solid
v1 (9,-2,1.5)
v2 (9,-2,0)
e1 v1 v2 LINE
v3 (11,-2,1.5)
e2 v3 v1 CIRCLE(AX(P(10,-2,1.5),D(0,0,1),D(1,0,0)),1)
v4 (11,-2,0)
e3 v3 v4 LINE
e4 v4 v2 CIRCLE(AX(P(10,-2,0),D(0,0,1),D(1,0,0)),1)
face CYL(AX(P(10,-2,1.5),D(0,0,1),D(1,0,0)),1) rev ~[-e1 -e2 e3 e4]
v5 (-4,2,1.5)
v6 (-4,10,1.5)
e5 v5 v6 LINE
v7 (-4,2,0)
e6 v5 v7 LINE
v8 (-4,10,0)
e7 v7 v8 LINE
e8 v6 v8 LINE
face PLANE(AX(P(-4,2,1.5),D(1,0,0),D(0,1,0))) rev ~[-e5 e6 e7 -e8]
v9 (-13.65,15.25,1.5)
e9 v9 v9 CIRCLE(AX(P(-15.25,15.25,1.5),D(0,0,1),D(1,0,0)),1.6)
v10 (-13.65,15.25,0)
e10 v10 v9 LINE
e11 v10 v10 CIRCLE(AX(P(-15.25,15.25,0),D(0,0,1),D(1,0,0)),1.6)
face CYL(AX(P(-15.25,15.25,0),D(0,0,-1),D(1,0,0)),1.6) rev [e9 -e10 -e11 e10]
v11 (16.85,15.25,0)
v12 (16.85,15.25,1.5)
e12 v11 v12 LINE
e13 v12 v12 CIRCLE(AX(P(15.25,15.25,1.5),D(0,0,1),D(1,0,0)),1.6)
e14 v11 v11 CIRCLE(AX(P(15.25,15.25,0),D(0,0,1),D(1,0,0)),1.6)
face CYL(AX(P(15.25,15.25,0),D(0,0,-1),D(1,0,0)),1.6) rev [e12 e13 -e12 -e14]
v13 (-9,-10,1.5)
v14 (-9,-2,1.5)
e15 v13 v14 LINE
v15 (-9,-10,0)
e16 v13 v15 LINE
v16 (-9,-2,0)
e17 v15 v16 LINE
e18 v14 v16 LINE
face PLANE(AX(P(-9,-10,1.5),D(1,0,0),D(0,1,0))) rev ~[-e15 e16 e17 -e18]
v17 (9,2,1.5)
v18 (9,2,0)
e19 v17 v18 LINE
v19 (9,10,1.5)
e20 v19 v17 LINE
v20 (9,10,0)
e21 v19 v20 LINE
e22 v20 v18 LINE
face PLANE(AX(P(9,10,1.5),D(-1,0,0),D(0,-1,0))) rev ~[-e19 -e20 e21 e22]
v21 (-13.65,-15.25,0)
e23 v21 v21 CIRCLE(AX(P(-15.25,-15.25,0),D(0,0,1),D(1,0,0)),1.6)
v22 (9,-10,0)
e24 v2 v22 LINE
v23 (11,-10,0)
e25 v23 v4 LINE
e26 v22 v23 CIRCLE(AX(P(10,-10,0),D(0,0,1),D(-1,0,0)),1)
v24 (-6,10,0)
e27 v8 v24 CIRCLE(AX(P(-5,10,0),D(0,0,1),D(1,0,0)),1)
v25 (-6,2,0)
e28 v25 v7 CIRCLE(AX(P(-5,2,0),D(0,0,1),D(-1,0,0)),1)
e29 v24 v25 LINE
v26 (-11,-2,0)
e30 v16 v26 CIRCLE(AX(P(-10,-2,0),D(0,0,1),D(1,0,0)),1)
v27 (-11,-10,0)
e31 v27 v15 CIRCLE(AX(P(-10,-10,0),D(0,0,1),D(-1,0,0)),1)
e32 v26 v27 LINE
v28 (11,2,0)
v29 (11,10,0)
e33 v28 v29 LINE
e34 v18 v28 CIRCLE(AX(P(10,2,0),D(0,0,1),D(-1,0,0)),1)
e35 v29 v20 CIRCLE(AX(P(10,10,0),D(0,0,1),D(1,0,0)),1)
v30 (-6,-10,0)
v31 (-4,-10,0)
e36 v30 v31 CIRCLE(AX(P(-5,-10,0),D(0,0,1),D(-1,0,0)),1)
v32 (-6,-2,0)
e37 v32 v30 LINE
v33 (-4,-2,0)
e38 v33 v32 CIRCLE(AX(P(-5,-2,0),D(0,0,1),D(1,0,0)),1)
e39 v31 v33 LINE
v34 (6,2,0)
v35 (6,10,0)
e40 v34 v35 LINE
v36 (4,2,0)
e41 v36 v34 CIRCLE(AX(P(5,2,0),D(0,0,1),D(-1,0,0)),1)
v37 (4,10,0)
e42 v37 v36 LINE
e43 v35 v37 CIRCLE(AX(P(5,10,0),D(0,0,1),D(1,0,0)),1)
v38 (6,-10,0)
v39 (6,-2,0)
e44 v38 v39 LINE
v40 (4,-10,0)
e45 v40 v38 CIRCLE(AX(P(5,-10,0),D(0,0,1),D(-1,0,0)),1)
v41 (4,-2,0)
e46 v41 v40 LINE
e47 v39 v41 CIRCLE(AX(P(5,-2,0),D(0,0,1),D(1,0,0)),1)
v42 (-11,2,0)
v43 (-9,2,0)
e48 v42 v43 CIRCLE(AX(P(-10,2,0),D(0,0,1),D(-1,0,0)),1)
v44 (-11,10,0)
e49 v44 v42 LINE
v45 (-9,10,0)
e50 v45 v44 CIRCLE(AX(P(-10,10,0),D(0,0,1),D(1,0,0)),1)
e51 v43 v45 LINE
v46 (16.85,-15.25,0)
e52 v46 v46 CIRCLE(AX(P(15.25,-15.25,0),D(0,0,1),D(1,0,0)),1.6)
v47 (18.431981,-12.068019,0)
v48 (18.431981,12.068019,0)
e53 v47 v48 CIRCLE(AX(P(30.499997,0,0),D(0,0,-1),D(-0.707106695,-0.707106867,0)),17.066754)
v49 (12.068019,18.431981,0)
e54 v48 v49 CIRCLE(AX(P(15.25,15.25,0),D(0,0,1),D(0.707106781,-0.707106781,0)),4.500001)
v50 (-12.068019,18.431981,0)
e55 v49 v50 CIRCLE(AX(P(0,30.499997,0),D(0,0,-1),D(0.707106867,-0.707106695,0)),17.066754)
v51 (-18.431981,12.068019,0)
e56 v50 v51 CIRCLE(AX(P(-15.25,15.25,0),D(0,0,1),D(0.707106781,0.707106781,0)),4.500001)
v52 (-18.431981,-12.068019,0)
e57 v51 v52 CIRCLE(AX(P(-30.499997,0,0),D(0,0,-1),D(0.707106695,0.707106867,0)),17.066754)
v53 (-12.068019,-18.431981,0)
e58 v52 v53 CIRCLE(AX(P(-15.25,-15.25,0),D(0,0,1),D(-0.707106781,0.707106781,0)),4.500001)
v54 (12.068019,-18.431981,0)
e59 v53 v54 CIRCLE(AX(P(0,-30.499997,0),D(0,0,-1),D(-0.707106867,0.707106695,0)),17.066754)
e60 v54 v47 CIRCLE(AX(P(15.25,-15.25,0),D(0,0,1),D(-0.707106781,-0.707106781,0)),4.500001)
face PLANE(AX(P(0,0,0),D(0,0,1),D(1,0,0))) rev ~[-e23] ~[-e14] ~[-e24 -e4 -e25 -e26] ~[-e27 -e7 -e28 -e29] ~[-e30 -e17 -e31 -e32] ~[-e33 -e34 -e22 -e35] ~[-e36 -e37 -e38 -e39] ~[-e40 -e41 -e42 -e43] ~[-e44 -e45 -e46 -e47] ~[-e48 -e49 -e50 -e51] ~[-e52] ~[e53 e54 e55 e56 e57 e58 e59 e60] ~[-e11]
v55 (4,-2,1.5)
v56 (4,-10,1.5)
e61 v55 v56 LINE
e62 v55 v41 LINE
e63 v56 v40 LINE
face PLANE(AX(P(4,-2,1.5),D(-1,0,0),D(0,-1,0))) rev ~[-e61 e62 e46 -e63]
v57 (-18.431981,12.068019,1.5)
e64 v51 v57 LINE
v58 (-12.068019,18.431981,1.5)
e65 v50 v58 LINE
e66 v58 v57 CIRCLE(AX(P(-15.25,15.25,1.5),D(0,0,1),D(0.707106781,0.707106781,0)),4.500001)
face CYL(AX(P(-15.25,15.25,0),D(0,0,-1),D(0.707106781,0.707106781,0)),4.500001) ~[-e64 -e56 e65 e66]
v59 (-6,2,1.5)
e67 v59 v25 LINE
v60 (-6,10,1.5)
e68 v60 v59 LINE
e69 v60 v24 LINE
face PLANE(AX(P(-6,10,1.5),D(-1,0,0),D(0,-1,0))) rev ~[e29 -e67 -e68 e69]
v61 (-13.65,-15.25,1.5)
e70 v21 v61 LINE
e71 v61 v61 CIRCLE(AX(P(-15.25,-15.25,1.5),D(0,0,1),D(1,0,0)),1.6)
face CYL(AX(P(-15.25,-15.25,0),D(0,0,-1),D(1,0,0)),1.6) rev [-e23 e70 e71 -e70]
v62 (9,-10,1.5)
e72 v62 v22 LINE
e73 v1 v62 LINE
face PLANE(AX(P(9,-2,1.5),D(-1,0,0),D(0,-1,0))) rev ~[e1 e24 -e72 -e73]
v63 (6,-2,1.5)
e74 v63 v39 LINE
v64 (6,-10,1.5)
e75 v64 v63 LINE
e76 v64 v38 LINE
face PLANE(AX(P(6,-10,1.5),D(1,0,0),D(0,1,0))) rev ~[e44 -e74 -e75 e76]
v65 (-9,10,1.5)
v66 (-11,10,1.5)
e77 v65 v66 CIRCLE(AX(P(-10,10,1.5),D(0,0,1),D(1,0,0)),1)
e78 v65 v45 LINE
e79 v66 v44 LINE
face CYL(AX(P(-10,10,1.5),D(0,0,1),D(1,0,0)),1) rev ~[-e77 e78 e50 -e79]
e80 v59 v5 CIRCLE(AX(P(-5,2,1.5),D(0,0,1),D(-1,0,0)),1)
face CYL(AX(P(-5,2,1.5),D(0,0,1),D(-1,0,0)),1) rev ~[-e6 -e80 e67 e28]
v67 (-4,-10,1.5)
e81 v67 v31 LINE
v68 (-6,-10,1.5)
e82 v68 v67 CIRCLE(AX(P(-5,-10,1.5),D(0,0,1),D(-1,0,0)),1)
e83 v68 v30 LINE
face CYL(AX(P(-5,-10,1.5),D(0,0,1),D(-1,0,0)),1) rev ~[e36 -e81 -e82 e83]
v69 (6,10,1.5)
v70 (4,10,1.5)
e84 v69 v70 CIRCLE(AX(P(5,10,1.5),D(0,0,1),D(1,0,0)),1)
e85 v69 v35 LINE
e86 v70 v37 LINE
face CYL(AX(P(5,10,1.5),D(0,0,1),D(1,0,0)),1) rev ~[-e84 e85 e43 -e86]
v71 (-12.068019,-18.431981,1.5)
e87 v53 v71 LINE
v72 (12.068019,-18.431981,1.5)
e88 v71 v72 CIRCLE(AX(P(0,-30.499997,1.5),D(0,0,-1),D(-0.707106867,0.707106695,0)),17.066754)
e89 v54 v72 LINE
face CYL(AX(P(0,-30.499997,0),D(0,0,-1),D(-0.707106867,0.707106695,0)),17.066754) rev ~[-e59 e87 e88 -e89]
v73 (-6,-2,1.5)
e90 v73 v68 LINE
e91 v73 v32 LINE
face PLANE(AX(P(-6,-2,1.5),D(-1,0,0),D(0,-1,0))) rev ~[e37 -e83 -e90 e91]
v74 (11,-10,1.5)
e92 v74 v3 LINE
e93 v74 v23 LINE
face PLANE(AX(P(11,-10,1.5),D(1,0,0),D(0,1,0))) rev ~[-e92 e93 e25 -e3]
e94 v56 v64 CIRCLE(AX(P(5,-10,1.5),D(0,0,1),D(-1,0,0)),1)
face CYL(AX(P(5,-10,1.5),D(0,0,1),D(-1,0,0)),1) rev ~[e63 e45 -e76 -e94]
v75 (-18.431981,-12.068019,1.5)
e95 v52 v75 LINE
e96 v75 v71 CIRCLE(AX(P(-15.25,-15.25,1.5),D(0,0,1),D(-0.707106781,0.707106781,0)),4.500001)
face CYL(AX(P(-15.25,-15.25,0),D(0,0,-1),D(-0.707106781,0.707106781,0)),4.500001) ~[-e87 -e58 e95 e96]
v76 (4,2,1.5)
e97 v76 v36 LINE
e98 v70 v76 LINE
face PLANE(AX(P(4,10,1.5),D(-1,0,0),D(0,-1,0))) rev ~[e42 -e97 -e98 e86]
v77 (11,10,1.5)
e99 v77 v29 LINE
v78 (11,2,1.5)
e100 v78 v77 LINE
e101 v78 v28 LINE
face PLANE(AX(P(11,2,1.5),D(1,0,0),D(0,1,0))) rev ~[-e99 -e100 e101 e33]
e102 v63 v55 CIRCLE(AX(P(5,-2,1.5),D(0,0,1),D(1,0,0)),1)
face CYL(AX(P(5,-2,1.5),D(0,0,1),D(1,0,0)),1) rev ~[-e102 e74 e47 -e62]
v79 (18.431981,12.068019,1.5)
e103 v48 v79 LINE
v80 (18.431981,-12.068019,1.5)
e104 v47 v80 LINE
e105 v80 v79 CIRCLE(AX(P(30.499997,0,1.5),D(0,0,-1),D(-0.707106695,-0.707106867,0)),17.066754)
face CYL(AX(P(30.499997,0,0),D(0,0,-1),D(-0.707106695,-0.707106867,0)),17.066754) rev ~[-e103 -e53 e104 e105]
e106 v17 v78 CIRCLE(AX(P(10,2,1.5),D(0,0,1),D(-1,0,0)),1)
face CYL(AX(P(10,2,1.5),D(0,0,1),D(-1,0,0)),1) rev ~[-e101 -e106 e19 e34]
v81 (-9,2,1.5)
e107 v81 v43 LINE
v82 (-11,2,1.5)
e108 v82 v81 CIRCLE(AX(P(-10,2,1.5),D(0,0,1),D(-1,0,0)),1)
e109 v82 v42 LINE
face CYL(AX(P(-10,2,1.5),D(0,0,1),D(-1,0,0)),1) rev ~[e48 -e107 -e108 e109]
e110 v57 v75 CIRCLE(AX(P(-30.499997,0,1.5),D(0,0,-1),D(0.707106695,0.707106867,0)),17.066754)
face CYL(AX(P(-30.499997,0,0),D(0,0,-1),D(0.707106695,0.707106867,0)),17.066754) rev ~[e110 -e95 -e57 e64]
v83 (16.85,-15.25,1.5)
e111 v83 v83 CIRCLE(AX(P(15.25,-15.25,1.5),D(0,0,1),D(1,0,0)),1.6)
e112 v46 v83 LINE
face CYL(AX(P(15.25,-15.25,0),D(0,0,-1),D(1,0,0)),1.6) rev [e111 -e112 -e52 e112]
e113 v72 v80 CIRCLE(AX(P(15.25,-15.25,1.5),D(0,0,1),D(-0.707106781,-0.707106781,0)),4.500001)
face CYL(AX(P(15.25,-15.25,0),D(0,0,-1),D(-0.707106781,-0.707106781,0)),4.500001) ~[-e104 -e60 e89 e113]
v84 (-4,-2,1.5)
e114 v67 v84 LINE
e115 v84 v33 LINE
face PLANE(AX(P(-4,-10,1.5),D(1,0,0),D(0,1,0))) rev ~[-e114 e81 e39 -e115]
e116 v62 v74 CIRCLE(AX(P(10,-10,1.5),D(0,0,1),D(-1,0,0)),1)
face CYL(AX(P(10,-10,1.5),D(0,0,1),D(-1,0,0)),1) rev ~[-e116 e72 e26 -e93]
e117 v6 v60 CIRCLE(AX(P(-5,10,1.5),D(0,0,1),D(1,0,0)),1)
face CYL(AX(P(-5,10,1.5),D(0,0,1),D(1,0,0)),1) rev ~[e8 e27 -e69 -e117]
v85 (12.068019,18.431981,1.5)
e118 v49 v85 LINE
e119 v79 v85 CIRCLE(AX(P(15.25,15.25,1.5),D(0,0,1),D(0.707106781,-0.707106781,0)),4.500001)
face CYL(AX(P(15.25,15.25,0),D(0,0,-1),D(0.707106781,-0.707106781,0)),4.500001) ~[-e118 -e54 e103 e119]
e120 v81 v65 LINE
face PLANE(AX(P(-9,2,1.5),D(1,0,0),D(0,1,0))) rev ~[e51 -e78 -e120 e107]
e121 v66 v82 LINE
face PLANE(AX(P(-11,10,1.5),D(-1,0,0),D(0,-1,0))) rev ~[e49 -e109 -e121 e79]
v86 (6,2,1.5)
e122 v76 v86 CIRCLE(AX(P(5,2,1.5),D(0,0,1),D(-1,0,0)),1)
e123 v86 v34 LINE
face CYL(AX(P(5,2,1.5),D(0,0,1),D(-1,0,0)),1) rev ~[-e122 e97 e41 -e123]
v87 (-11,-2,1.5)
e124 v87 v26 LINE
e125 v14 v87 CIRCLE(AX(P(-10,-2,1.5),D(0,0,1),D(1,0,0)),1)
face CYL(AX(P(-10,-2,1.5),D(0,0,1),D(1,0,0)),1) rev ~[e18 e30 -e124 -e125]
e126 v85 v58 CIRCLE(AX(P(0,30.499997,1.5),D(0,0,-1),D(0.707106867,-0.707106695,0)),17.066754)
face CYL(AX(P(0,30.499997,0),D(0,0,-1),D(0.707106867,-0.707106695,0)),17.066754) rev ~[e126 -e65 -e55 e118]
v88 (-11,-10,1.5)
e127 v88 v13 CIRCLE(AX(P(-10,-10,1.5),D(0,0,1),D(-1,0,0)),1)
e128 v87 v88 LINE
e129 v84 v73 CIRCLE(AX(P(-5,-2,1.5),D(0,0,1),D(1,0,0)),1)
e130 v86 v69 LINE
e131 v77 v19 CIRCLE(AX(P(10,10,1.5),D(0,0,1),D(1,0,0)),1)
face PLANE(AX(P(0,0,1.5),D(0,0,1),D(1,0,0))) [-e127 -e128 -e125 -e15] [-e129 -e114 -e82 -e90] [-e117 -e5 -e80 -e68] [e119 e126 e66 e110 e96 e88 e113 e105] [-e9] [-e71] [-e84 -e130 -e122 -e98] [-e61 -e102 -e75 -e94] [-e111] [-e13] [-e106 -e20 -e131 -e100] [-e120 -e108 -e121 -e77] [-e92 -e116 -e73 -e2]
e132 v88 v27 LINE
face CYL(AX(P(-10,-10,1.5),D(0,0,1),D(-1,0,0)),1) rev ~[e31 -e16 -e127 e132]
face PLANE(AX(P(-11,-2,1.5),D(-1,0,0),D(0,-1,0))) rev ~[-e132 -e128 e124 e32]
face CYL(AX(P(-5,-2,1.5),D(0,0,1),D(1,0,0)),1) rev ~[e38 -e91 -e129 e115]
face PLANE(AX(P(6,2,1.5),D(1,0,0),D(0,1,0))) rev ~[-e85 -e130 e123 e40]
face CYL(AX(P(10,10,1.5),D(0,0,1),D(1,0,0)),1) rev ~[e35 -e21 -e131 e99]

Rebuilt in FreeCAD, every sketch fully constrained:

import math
import FreeCAD as App
import Part
import Sketcher

doc = App.newDocument("Part")
body = doc.addObject("PartDesign::Body", "Body")

# Sketch on XY plane
sketch1 = body.newObject("Sketcher::SketchObject", "Sketch")
sketch1.AttachmentSupport = (doc.getObject("XY_Plane"), [""])
sketch1.MapMode = "FlatFace"
sketch1.addGeometry([
    Part.ArcOfCircle(Part.Circle(App.Vector(0, 30.5, 0), App.Vector(0, 0, 1), 17.1), math.radians(-135), math.radians(-45)),  # 0
    Part.ArcOfCircle(Part.Circle(App.Vector(-15.2, 15.2, 0), App.Vector(0, 0, 1), 4.5), math.radians(45), math.radians(225)),  # 1
    Part.ArcOfCircle(Part.Circle(App.Vector(-30.5, 0, 0), App.Vector(0, 0, 1), 17.1), math.radians(-45), math.radians(45)),  # 2
    Part.ArcOfCircle(Part.Circle(App.Vector(-15.2, -15.2, 0), App.Vector(0, 0, 1), 4.5), math.radians(135), math.radians(315)),  # 3
    Part.ArcOfCircle(Part.Circle(App.Vector(0, -30.5, 0), App.Vector(0, 0, 1), 17.1), math.radians(45), math.radians(135)),  # 4
    Part.ArcOfCircle(Part.Circle(App.Vector(15.2, -15.2, 0), App.Vector(0, 0, 1), 4.5), math.radians(-135), math.radians(45)),  # 5
    Part.ArcOfCircle(Part.Circle(App.Vector(30.5, 0, 0), App.Vector(0, 0, 1), 17.1), math.radians(135), math.radians(225)),  # 6
    Part.ArcOfCircle(Part.Circle(App.Vector(15.2, 15.2, 0), App.Vector(0, 0, 1), 4.5), math.radians(-45), math.radians(135)),  # 7
    Part.Circle(App.Vector(-15.2, -15.2, 0), App.Vector(0, 0, 1), 1.6),  # 8
    Part.Circle(App.Vector(15.2, -15.2, 0), App.Vector(0, 0, 1), 1.6),  # 9
    Part.Circle(App.Vector(-15.2, 15.2, 0), App.Vector(0, 0, 1), 1.6),  # 10
    Part.Circle(App.Vector(15.2, 15.2, 0), App.Vector(0, 0, 1), 1.6),  # 11
], False)
sketch1.addConstraint([
    Sketcher.Constraint("Tangent", 0, 1, 1, 1),
    Sketcher.Constraint("Tangent", 1, 2, 2, 2),
    Sketcher.Constraint("Tangent", 2, 1, 3, 1),
    Sketcher.Constraint("Tangent", 3, 2, 4, 2),
    Sketcher.Constraint("Tangent", 4, 1, 5, 1),
    Sketcher.Constraint("Tangent", 5, 2, 6, 2),
    Sketcher.Constraint("Tangent", 6, 1, 7, 1),
    Sketcher.Constraint("Tangent", 7, 2, 0, 2),
    Sketcher.Constraint("Coincident", 8, 3, 3, 3),
    Sketcher.Constraint("Coincident", 9, 3, 5, 3),
    Sketcher.Constraint("Coincident", 10, 3, 1, 3),
    Sketcher.Constraint("Coincident", 11, 3, 7, 3),
    Sketcher.Constraint("Equal", 0, 2),
    Sketcher.Constraint("Equal", 1, 3),
    Sketcher.Constraint("Equal", 2, 4),
    Sketcher.Constraint("Equal", 3, 5),
    Sketcher.Constraint("Equal", 4, 6),
    Sketcher.Constraint("Equal", 5, 7),
    Sketcher.Constraint("Equal", 8, 9),
    Sketcher.Constraint("Equal", 9, 10),
    Sketcher.Constraint("Equal", 10, 11),
    Sketcher.Constraint("Symmetric", 0, 3, 4, 3, -1, 1),
    Sketcher.Constraint("Symmetric", 3, 3, 5, 3, -2),
    Sketcher.Constraint("Horizontal", 1, 3, 7, 3),
    Sketcher.Constraint("Vertical", 1, 3, 3, 3),
    Sketcher.Constraint("Diameter", 8, 3.2),
    Sketcher.Constraint("Radius", 1, 4.500001),
    Sketcher.Constraint("DistanceY", 3, 3, 1, 3, 30.5),
    Sketcher.Constraint("DistanceX", 3, 3, 5, 3, 30.5),
    Sketcher.Constraint("Radius", 0, 17.066754),
])
pad1 = body.newObject("PartDesign::Pad", "Pad")
pad1.Profile = sketch1
pad1.Length = 1.5

# Sketch on XY plane
sketch2 = body.newObject("Sketcher::SketchObject", "Sketch001")
sketch2.AttachmentSupport = (doc.getObject("XY_Plane"), [""])
sketch2.MapMode = "FlatFace"
sketch2.AttachmentOffset = App.Placement(App.Vector(0, 0, 1.5), App.Rotation())
sketch2.addGeometry([
    Part.LineSegment(App.Vector(-4, 2, 0), App.Vector(-4, 10, 0)),  # 0
    Part.ArcOfCircle(Part.Circle(App.Vector(-5, 10, 0), App.Vector(0, 0, 1), 1), math.radians(0), math.radians(180)),  # 1
    Part.LineSegment(App.Vector(-6, 10, 0), App.Vector(-6, 2, 0)),  # 2
    Part.ArcOfCircle(Part.Circle(App.Vector(-5, 2, 0), App.Vector(0, 0, 1), 1), math.radians(180), math.radians(360)),  # 3
    Part.ArcOfCircle(Part.Circle(App.Vector(5, 10, 0), App.Vector(0, 0, 1), 1), math.radians(0), math.radians(180)),  # 4
    Part.LineSegment(App.Vector(4, 10, 0), App.Vector(4, 2, 0)),  # 5
    Part.ArcOfCircle(Part.Circle(App.Vector(5, 2, 0), App.Vector(0, 0, 1), 1), math.radians(180), math.radians(360)),  # 6
    Part.LineSegment(App.Vector(6, 2, 0), App.Vector(6, 10, 0)),  # 7
    Part.LineSegment(App.Vector(-4, -10, 0), App.Vector(-4, -2, 0)),  # 8
    Part.ArcOfCircle(Part.Circle(App.Vector(-5, -2, 0), App.Vector(0, 0, 1), 1), math.radians(0), math.radians(180)),  # 9
    Part.LineSegment(App.Vector(-6, -2, 0), App.Vector(-6, -10, 0)),  # 10
    Part.ArcOfCircle(Part.Circle(App.Vector(-5, -10, 0), App.Vector(0, 0, 1), 1), math.radians(180), math.radians(360)),  # 11
    Part.ArcOfCircle(Part.Circle(App.Vector(5, -2, 0), App.Vector(0, 0, 1), 1), math.radians(0), math.radians(180)),  # 12
    Part.LineSegment(App.Vector(4, -2, 0), App.Vector(4, -10, 0)),  # 13
    Part.ArcOfCircle(Part.Circle(App.Vector(5, -10, 0), App.Vector(0, 0, 1), 1), math.radians(180), math.radians(360)),  # 14
    Part.LineSegment(App.Vector(6, -10, 0), App.Vector(6, -2, 0)),  # 15
    Part.LineSegment(App.Vector(-9, 2, 0), App.Vector(-9, 10, 0)),  # 16
    Part.ArcOfCircle(Part.Circle(App.Vector(-10, 10, 0), App.Vector(0, 0, 1), 1), math.radians(0), math.radians(180)),  # 17
    Part.LineSegment(App.Vector(-11, 10, 0), App.Vector(-11, 2, 0)),  # 18
    Part.ArcOfCircle(Part.Circle(App.Vector(-10, 2, 0), App.Vector(0, 0, 1), 1), math.radians(180), math.radians(360)),  # 19
    Part.LineSegment(App.Vector(-9, -10, 0), App.Vector(-9, -2, 0)),  # 20
    Part.ArcOfCircle(Part.Circle(App.Vector(-10, -2, 0), App.Vector(0, 0, 1), 1), math.radians(0), math.radians(180)),  # 21
    Part.LineSegment(App.Vector(-11, -2, 0), App.Vector(-11, -10, 0)),  # 22
    Part.ArcOfCircle(Part.Circle(App.Vector(-10, -10, 0), App.Vector(0, 0, 1), 1), math.radians(180), math.radians(360)),  # 23
    Part.ArcOfCircle(Part.Circle(App.Vector(10, -2, 0), App.Vector(0, 0, 1), 1), math.radians(0), math.radians(180)),  # 24
    Part.LineSegment(App.Vector(9, -2, 0), App.Vector(9, -10, 0)),  # 25
    Part.ArcOfCircle(Part.Circle(App.Vector(10, -10, 0), App.Vector(0, 0, 1), 1), math.radians(180), math.radians(360)),  # 26
    Part.LineSegment(App.Vector(11, -10, 0), App.Vector(11, -2, 0)),  # 27
    Part.LineSegment(App.Vector(9, 10, 0), App.Vector(9, 2, 0)),  # 28
    Part.ArcOfCircle(Part.Circle(App.Vector(10, 2, 0), App.Vector(0, 0, 1), 1), math.radians(180), math.radians(360)),  # 29
    Part.LineSegment(App.Vector(11, 2, 0), App.Vector(11, 10, 0)),  # 30
    Part.ArcOfCircle(Part.Circle(App.Vector(10, 10, 0), App.Vector(0, 0, 1), 1), math.radians(0), math.radians(180)),  # 31
], False)
sketch2.addConstraint([
    Sketcher.Constraint("Tangent", 0, 2, 1, 1),
    Sketcher.Constraint("Tangent", 1, 2, 2, 1),
    Sketcher.Constraint("Tangent", 2, 2, 3, 1),
    Sketcher.Constraint("Tangent", 3, 2, 0, 1),
    Sketcher.Constraint("Tangent", 4, 2, 5, 1),
    Sketcher.Constraint("Tangent", 5, 2, 6, 1),
    Sketcher.Constraint("Tangent", 6, 2, 7, 1),
    Sketcher.Constraint("Tangent", 7, 2, 4, 1),
    Sketcher.Constraint("Tangent", 8, 2, 9, 1),
    Sketcher.Constraint("Tangent", 9, 2, 10, 1),
    Sketcher.Constraint("Tangent", 10, 2, 11, 1),
    Sketcher.Constraint("Tangent", 11, 2, 8, 1),
    Sketcher.Constraint("Tangent", 12, 2, 13, 1),
    Sketcher.Constraint("Tangent", 13, 2, 14, 1),
    Sketcher.Constraint("Tangent", 14, 2, 15, 1),
    Sketcher.Constraint("Tangent", 15, 2, 12, 1),
    Sketcher.Constraint("Tangent", 16, 2, 17, 1),
    Sketcher.Constraint("Tangent", 17, 2, 18, 1),
    Sketcher.Constraint("Tangent", 18, 2, 19, 1),
    Sketcher.Constraint("Tangent", 19, 2, 16, 1),
    Sketcher.Constraint("Tangent", 20, 2, 21, 1),
    Sketcher.Constraint("Tangent", 21, 2, 22, 1),
    Sketcher.Constraint("Tangent", 22, 2, 23, 1),
    Sketcher.Constraint("Tangent", 23, 2, 20, 1),
    Sketcher.Constraint("Tangent", 24, 2, 25, 1),
    Sketcher.Constraint("Tangent", 25, 2, 26, 1),
    Sketcher.Constraint("Tangent", 26, 2, 27, 1),
    Sketcher.Constraint("Tangent", 27, 2, 24, 1),
    Sketcher.Constraint("Tangent", 28, 2, 29, 1),
    Sketcher.Constraint("Tangent", 29, 2, 30, 1),
    Sketcher.Constraint("Tangent", 30, 2, 31, 1),
    Sketcher.Constraint("Tangent", 31, 2, 28, 1),
    Sketcher.Constraint("Vertical", 0),
    Sketcher.Constraint("Vertical", 2),
    Sketcher.Constraint("Vertical", 5),
    Sketcher.Constraint("Vertical", 7),
    Sketcher.Constraint("Vertical", 8),
    Sketcher.Constraint("Vertical", 10),
    Sketcher.Constraint("Vertical", 13),
    Sketcher.Constraint("Vertical", 15),
    Sketcher.Constraint("Vertical", 16),
    Sketcher.Constraint("Vertical", 18),
    Sketcher.Constraint("Vertical", 20),
    Sketcher.Constraint("Vertical", 22),
    Sketcher.Constraint("Vertical", 25),
    Sketcher.Constraint("Vertical", 27),
    Sketcher.Constraint("Vertical", 28),
    Sketcher.Constraint("Vertical", 30),
    Sketcher.Constraint("Equal", 3, 4),
    Sketcher.Constraint("Equal", 6, 9),
    Sketcher.Constraint("Equal", 11, 12),
    Sketcher.Constraint("Equal", 14, 17),
    Sketcher.Constraint("Equal", 19, 21),
    Sketcher.Constraint("Equal", 23, 24),
    Sketcher.Constraint("Equal", 26, 29),
    Sketcher.Constraint("Symmetric", 6, 3, 9, 3, -1, 1),
    Sketcher.Constraint("Symmetric", 3, 3, 12, 3, -1, 1),
    Sketcher.Constraint("Symmetric", 19, 3, 24, 3, -1, 1),
    Sketcher.Constraint("Symmetric", 21, 3, 29, 3, -1, 1),
    Sketcher.Constraint("Symmetric", 1, 3, 4, 3, -2),
    Sketcher.Constraint("Symmetric", 21, 3, 24, 3, -2),
    Sketcher.Constraint("Horizontal", 3, 3, 6, 3),
    Sketcher.Constraint("Horizontal", 11, 3, 14, 3),
    Sketcher.Constraint("Horizontal", 4, 3, 17, 3),
    Sketcher.Constraint("Horizontal", 6, 3, 19, 3),
    Sketcher.Constraint("Horizontal", 14, 3, 23, 3),
    Sketcher.Constraint("Horizontal", 23, 3, 26, 3),
    Sketcher.Constraint("Horizontal", 17, 3, 31, 3),
    Sketcher.Constraint("Equal", 7, 8),
    Sketcher.Constraint("Radius", 1, 1.0),
    Sketcher.Constraint("DistanceY", 0, 1, 0, 2, 8.0),
    Sketcher.Constraint("DistanceX", 1, 3, -1, 1, 5.0),
    Sketcher.Constraint("DistanceY", -1, 1, 1, 3, 10.0),
    Sketcher.Constraint("DistanceX", 17, 3, -1, 1, 10.0),
])
pocket1 = body.newObject("PartDesign::Pocket", "Pocket")
pocket1.Profile = sketch2
pocket1.Type = "ThroughAll"

doc.recompute()
